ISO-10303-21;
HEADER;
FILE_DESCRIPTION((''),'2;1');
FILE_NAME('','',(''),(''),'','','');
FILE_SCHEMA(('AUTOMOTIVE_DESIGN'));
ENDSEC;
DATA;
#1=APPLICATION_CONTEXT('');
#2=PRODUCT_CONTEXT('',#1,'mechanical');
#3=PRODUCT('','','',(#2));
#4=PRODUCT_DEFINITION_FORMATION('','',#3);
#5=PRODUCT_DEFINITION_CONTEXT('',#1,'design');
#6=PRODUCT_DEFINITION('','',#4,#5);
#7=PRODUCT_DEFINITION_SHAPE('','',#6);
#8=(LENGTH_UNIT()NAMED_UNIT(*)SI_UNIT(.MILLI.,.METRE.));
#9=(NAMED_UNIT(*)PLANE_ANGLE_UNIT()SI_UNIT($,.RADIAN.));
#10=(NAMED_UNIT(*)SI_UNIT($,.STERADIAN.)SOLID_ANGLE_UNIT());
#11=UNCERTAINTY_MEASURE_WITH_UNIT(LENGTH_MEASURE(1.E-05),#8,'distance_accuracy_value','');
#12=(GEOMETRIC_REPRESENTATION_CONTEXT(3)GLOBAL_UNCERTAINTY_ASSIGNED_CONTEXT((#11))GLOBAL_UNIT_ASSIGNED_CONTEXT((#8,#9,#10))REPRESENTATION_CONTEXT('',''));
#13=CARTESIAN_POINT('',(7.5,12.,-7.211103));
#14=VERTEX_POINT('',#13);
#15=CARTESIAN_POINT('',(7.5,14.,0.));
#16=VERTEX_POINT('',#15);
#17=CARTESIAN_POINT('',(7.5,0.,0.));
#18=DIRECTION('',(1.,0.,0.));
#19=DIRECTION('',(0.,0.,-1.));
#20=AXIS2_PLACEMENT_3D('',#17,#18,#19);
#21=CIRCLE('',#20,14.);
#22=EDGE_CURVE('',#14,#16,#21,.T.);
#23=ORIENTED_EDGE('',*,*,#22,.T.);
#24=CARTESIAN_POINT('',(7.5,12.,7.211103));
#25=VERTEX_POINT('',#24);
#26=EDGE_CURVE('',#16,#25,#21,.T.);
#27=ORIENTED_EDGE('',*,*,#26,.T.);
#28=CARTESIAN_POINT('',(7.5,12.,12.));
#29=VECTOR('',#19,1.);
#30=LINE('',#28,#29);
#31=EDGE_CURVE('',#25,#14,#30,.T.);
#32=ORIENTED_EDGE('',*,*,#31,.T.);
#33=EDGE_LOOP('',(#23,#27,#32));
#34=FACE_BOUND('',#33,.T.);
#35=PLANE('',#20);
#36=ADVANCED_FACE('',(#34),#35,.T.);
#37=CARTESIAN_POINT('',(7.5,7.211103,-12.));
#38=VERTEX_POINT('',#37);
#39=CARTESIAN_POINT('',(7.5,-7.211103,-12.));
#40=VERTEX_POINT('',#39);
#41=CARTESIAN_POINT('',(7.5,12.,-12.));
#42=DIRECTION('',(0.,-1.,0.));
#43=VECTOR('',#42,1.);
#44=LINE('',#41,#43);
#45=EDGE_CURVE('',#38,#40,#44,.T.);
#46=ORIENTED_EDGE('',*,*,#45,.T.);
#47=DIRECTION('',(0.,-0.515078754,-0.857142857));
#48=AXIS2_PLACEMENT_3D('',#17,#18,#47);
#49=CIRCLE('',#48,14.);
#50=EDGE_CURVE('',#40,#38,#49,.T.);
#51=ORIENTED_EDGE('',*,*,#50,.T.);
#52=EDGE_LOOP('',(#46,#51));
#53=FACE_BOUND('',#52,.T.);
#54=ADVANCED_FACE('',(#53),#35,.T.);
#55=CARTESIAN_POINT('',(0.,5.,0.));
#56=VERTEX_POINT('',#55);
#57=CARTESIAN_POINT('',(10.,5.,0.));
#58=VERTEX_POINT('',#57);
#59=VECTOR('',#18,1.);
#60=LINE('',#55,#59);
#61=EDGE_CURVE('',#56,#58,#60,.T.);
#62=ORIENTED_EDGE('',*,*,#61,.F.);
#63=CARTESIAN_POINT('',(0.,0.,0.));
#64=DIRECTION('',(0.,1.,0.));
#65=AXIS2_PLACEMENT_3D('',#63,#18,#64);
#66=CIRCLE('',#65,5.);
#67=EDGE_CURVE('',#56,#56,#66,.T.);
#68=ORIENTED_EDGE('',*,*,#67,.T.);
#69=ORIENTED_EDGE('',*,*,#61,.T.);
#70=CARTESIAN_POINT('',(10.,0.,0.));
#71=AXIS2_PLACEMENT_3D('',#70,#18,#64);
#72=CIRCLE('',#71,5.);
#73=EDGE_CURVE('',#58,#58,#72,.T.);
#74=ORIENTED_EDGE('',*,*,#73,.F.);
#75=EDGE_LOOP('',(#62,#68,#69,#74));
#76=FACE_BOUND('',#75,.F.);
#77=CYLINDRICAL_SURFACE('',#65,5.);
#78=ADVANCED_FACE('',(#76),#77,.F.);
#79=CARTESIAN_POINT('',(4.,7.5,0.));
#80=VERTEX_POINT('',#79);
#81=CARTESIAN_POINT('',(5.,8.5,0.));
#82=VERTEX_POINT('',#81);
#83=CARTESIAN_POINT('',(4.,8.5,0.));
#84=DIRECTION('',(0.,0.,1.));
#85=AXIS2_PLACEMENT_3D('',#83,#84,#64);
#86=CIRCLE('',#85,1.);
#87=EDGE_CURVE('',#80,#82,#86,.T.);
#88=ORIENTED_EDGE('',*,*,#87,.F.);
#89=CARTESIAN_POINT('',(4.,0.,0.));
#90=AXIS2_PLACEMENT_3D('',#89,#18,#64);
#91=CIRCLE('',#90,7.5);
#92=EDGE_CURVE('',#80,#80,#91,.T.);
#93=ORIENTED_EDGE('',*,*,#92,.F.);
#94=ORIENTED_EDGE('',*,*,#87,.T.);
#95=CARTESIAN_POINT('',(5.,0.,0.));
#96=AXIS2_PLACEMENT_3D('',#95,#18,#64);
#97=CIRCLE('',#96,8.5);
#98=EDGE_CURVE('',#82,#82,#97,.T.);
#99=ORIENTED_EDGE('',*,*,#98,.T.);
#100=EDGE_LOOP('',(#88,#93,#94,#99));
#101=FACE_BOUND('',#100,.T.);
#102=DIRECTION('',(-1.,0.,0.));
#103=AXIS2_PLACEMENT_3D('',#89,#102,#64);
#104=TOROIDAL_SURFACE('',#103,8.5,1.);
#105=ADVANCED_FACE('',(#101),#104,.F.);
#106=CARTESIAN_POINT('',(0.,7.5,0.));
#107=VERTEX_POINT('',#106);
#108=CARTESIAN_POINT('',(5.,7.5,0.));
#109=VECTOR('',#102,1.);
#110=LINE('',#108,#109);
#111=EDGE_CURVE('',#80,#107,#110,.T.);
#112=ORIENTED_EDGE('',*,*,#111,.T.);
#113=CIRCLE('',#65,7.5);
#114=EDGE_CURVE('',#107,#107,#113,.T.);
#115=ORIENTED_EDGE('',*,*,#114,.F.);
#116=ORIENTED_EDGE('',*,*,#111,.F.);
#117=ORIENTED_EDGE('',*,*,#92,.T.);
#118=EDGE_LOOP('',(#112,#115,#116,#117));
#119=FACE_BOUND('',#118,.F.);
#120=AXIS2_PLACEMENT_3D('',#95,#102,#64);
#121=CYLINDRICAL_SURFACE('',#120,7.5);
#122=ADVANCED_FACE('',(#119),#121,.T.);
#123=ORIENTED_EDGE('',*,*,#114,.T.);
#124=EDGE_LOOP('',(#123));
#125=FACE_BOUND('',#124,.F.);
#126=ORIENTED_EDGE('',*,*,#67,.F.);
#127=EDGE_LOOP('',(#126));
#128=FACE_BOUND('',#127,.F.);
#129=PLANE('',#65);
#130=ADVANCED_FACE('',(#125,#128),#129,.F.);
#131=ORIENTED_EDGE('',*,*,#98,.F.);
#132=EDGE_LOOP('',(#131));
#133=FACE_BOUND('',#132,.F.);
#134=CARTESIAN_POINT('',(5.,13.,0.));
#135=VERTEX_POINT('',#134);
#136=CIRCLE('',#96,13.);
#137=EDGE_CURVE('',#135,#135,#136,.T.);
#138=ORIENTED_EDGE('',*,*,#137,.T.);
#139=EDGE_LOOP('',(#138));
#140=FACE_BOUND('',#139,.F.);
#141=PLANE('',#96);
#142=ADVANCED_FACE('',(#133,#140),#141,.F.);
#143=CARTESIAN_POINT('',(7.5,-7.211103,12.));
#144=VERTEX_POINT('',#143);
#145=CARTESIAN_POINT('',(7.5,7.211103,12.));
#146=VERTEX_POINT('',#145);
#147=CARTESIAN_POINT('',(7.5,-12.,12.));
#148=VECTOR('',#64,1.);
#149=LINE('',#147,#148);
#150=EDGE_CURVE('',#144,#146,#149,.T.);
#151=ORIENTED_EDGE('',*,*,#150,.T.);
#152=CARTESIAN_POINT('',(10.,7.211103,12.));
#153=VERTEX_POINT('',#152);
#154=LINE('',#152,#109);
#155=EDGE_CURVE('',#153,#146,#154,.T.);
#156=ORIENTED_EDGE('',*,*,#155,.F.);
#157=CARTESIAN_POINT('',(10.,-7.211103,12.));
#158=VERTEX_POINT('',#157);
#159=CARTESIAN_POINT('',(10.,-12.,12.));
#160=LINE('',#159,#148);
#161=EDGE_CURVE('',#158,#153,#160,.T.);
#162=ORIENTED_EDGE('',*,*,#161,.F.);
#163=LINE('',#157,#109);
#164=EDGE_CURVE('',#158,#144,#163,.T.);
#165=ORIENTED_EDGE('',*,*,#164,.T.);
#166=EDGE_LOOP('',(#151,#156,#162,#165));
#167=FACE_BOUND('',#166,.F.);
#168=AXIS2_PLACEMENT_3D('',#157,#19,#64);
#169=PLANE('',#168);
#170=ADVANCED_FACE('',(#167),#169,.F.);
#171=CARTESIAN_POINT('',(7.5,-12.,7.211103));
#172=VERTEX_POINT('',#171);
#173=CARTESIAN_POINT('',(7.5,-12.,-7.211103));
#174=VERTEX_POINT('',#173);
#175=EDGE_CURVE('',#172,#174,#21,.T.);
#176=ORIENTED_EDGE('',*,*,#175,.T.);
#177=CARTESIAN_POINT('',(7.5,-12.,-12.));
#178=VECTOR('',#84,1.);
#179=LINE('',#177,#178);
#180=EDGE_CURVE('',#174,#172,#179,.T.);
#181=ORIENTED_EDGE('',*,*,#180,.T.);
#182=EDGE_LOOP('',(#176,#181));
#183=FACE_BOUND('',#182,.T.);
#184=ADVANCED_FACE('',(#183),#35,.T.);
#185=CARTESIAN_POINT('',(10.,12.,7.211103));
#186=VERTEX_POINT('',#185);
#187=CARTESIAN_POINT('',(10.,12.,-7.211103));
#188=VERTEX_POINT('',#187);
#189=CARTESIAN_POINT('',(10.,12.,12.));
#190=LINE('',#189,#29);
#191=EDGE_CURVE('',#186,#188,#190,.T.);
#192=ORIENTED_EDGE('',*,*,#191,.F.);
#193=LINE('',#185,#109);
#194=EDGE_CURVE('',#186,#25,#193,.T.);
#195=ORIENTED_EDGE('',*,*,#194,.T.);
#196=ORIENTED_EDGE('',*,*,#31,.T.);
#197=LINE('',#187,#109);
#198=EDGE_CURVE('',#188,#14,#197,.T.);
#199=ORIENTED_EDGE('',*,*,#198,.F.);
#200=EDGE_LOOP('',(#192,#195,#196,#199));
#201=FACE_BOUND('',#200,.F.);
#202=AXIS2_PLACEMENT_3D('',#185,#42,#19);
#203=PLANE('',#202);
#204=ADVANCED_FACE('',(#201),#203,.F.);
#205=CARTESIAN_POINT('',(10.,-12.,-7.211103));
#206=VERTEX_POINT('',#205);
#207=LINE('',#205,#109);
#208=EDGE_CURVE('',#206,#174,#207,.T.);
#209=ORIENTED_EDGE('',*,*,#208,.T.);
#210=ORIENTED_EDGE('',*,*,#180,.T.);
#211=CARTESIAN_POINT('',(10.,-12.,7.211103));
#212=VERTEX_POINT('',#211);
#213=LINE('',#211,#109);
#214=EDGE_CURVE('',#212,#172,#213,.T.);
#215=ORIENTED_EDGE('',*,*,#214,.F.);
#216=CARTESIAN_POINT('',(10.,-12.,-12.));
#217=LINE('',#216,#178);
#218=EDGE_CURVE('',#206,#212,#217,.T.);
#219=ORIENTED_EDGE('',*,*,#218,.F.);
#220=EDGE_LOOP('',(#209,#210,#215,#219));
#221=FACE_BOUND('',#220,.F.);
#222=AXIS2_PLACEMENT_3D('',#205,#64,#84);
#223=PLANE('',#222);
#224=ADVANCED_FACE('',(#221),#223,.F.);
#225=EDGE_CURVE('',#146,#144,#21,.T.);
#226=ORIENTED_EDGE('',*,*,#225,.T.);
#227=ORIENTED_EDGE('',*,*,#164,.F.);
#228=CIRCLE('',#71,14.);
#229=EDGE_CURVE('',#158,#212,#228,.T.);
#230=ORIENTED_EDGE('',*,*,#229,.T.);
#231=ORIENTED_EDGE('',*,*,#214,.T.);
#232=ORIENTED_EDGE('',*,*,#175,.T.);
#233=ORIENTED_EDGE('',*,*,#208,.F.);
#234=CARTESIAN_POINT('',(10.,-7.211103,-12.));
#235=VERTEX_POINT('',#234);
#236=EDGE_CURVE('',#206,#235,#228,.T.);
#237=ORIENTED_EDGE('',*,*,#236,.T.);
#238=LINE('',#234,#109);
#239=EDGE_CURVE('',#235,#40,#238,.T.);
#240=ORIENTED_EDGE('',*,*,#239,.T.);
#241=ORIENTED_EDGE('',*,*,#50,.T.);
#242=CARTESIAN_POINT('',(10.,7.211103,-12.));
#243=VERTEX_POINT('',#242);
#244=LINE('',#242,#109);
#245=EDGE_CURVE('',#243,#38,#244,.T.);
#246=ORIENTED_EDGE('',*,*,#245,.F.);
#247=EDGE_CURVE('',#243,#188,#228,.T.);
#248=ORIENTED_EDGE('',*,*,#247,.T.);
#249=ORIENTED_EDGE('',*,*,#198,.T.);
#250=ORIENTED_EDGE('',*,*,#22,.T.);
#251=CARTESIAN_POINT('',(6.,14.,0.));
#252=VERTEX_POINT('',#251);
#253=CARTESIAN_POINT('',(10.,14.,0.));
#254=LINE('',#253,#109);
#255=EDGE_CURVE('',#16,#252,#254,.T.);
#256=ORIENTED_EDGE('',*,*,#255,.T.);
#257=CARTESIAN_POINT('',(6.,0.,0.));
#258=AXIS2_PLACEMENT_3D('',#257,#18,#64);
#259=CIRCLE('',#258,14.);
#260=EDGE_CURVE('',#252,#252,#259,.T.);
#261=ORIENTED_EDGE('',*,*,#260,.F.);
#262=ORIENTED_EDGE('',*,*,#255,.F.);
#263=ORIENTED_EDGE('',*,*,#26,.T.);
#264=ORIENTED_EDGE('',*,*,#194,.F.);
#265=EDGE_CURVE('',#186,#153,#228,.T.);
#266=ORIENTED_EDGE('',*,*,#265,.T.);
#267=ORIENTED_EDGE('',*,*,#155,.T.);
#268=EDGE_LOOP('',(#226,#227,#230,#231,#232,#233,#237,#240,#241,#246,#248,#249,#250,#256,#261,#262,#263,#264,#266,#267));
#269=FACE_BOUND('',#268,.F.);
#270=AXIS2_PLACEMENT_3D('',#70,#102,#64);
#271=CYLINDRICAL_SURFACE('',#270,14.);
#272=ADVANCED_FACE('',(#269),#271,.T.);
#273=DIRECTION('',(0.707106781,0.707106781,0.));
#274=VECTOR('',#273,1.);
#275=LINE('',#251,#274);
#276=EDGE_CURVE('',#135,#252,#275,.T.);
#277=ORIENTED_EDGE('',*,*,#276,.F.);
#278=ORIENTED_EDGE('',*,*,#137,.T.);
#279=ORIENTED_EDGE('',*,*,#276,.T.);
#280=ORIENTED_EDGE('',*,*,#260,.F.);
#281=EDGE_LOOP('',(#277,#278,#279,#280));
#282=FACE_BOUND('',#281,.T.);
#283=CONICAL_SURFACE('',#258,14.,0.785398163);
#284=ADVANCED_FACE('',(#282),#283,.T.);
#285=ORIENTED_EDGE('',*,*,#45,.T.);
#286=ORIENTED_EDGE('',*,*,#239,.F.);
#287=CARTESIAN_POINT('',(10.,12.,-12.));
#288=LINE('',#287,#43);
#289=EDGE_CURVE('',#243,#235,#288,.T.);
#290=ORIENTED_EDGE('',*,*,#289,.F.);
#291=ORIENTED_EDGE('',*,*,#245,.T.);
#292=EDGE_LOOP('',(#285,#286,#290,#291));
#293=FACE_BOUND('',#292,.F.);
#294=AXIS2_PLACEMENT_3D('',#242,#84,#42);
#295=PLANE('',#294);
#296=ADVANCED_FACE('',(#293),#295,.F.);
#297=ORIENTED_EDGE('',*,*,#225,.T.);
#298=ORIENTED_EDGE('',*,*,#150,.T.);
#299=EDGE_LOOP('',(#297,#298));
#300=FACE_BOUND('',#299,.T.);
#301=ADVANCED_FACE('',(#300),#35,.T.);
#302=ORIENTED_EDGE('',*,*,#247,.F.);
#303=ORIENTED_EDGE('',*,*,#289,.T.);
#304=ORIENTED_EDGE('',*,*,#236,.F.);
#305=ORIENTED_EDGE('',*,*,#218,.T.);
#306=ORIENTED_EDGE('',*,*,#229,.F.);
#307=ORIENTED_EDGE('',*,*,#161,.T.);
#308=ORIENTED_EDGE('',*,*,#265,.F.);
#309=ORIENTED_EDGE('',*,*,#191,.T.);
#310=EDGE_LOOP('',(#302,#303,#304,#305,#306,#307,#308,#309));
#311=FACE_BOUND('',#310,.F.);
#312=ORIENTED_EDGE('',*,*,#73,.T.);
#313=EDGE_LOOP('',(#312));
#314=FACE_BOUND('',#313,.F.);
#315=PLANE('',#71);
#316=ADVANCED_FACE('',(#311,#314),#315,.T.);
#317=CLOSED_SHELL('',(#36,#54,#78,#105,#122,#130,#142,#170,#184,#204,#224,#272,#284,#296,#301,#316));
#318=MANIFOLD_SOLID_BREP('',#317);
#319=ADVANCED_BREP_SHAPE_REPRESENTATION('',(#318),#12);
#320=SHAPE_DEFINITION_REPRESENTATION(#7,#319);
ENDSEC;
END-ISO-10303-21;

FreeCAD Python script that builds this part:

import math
import FreeCAD as App
import Part
import Sketcher


def edges_at(feature, points):
    """Names of the edges that pass closest to the given points."""
    edges = feature.Shape.Edges
    near = lambda p: min(range(len(edges)), key=lambda i: edges[i].distToShape(Part.Vertex(*p))[0])
    return sorted({f"Edge{near(p) + 1}" for p in points})

doc = App.newDocument("Part")
body = doc.addObject("PartDesign::Body", "Body")

# Sketch on XY plane
sketch1 = body.newObject("Sketcher::SketchObject", "Sketch")
sketch1.AttachmentSupport = (doc.getObject("XY_Plane"), [""])
sketch1.MapMode = "FlatFace"
sketch1.addGeometry([
    Part.LineSegment(App.Vector(0, 7.5, 0), App.Vector(0, 5, 0)),  # 0
    Part.LineSegment(App.Vector(0, 5, 0), App.Vector(10, 5, 0)),  # 1
    Part.LineSegment(App.Vector(10, 5, 0), App.Vector(10, 14, 0)),  # 2
    Part.LineSegment(App.Vector(10, 14, 0), App.Vector(5, 14, 0)),  # 3
    Part.LineSegment(App.Vector(5, 14, 0), App.Vector(5, 7.5, 0)),  # 4
    Part.LineSegment(App.Vector(5, 7.5, 0), App.Vector(0, 7.5, 0)),  # 5
], False)
sketch1.addConstraint([
    Sketcher.Constraint("Coincident", 0, 2, 1, 1),
    Sketcher.Constraint("Coincident", 1, 2, 2, 1),
    Sketcher.Constraint("Coincident", 2, 2, 3, 1),
    Sketcher.Constraint("Coincident", 3, 2, 4, 1),
    Sketcher.Constraint("Coincident", 4, 2, 5, 1),
    Sketcher.Constraint("Coincident", 5, 2, 0, 1),
    Sketcher.Constraint("Vertical", 0),
    Sketcher.Constraint("Horizontal", 1),
    Sketcher.Constraint("Vertical", 2),
    Sketcher.Constraint("Horizontal", 3),
    Sketcher.Constraint("Vertical", 4),
    Sketcher.Constraint("Horizontal", 5),
    Sketcher.Constraint("PointOnObject", 0, 2, -2),
    Sketcher.Constraint("Equal", 3, 5),
    Sketcher.Constraint("DistanceX", 1, 1, 1, 2, 10.0),
    Sketcher.Constraint("DistanceY", -1, 1, 0, 2, 5.0),
    Sketcher.Constraint("DistanceY", 2, 1, 2, 2, 9.0),
    Sketcher.Constraint("DistanceY", 0, 2, 0, 1, 2.5),
])
revolution = body.newObject("PartDesign::Revolution", "Revolution")
revolution.Profile = sketch1
revolution.ReferenceAxis = (sketch1, ["H_Axis"])
revolution.Angle = 360
doc.recompute()

fillet = body.newObject("PartDesign::Fillet", "Fillet")
fillet.Base = (revolution, edges_at(revolution, [(5, -7.5, 0)]))
fillet.Radius = 1
doc.recompute()

chamfer = body.newObject("PartDesign::Chamfer", "Chamfer")
chamfer.Base = (fillet, edges_at(fillet, [(5, -14, 0)]))
chamfer.Size = 1

# Sketch on YZ plane
sketch2 = body.newObject("Sketcher::SketchObject", "Sketch001")
sketch2.AttachmentSupport = (doc.getObject("YZ_Plane"), [""])
sketch2.MapMode = "FlatFace"
sketch2.AttachmentOffset = App.Placement(App.Vector(0, 0, 10), App.Rotation())
sketch2.addGeometry([
    Part.ArcOfCircle(Part.Circle(App.Vector(0, 0, 0), App.Vector(0, 0, 1), 14), math.radians(-121), math.radians(-59)),  # 0
    Part.LineSegment(App.Vector(7, -12, 0), App.Vector(-7, -12, 0)),  # 1
    Part.LineSegment(App.Vector(12, 7, 0), App.Vector(12, -7, 0)),  # 2
    Part.ArcOfCircle(Part.Circle(App.Vector(0, 0, 0), App.Vector(0, 0, 1), 14), math.radians(-31), math.radians(31)),  # 3
    Part.ArcOfCircle(Part.Circle(App.Vector(0, 0, 0), App.Vector(0, 0, 1), 14), math.radians(149), math.radians(211)),  # 4
    Part.LineSegment(App.Vector(-12, -7, 0), App.Vector(-12, 7, 0)),  # 5
    Part.LineSegment(App.Vector(-7, 12, 0), App.Vector(7, 12, 0)),  # 6
    Part.ArcOfCircle(Part.Circle(App.Vector(0, 0, 0), App.Vector(0, 0, 1), 14), math.radians(59), math.radians(121)),  # 7
], False)
sketch2.addConstraint([
    Sketcher.Constraint("Coincident", 0, 1, 1, 2),
    Sketcher.Constraint("Coincident", 1, 1, 0, 2),
    Sketcher.Constraint("Coincident", 2, 1, 3, 2),
    Sketcher.Constraint("Coincident", 3, 1, 2, 2),
    Sketcher.Constraint("Coincident", 4, 1, 5, 2),
    Sketcher.Constraint("Coincident", 5, 1, 4, 2),
    Sketcher.Constraint("Coincident", 6, 1, 7, 2),
    Sketcher.Constraint("Coincident", 7, 1, 6, 2),
    Sketcher.Constraint("Horizontal", 1),
    Sketcher.Constraint("Vertical", 2),
    Sketcher.Constraint("Vertical", 5),
    Sketcher.Constraint("Horizontal", 6),
    Sketcher.Constraint("Coincident", 0, 3, -1, 1),
    Sketcher.Constraint("Coincident", 3, 3, -1, 1),
    Sketcher.Constraint("Coincident", 4, 3, -1, 1),
    Sketcher.Constraint("Coincident", 7, 3, -1, 1),
    Sketcher.Constraint("Equal", 0, 3),
    Sketcher.Constraint("Equal", 3, 4),
    Sketcher.Constraint("Equal", 4, 7),
    Sketcher.Constraint("Horizontal", 2, 1, 4, 1),
    Sketcher.Constraint("Vertical", 0, 1, 6, 1),
    Sketcher.Constraint("Equal", 6, 2),
    Sketcher.Constraint("Radius", 0, 14.0),
    Sketcher.Constraint("DistanceY", 0, 1, -1, 1, 12.0),
])
pocket1 = body.newObject("PartDesign::Pocket", "Pocket")
pocket1.Profile = sketch2
pocket1.Length = 2.5

doc.recompute()
